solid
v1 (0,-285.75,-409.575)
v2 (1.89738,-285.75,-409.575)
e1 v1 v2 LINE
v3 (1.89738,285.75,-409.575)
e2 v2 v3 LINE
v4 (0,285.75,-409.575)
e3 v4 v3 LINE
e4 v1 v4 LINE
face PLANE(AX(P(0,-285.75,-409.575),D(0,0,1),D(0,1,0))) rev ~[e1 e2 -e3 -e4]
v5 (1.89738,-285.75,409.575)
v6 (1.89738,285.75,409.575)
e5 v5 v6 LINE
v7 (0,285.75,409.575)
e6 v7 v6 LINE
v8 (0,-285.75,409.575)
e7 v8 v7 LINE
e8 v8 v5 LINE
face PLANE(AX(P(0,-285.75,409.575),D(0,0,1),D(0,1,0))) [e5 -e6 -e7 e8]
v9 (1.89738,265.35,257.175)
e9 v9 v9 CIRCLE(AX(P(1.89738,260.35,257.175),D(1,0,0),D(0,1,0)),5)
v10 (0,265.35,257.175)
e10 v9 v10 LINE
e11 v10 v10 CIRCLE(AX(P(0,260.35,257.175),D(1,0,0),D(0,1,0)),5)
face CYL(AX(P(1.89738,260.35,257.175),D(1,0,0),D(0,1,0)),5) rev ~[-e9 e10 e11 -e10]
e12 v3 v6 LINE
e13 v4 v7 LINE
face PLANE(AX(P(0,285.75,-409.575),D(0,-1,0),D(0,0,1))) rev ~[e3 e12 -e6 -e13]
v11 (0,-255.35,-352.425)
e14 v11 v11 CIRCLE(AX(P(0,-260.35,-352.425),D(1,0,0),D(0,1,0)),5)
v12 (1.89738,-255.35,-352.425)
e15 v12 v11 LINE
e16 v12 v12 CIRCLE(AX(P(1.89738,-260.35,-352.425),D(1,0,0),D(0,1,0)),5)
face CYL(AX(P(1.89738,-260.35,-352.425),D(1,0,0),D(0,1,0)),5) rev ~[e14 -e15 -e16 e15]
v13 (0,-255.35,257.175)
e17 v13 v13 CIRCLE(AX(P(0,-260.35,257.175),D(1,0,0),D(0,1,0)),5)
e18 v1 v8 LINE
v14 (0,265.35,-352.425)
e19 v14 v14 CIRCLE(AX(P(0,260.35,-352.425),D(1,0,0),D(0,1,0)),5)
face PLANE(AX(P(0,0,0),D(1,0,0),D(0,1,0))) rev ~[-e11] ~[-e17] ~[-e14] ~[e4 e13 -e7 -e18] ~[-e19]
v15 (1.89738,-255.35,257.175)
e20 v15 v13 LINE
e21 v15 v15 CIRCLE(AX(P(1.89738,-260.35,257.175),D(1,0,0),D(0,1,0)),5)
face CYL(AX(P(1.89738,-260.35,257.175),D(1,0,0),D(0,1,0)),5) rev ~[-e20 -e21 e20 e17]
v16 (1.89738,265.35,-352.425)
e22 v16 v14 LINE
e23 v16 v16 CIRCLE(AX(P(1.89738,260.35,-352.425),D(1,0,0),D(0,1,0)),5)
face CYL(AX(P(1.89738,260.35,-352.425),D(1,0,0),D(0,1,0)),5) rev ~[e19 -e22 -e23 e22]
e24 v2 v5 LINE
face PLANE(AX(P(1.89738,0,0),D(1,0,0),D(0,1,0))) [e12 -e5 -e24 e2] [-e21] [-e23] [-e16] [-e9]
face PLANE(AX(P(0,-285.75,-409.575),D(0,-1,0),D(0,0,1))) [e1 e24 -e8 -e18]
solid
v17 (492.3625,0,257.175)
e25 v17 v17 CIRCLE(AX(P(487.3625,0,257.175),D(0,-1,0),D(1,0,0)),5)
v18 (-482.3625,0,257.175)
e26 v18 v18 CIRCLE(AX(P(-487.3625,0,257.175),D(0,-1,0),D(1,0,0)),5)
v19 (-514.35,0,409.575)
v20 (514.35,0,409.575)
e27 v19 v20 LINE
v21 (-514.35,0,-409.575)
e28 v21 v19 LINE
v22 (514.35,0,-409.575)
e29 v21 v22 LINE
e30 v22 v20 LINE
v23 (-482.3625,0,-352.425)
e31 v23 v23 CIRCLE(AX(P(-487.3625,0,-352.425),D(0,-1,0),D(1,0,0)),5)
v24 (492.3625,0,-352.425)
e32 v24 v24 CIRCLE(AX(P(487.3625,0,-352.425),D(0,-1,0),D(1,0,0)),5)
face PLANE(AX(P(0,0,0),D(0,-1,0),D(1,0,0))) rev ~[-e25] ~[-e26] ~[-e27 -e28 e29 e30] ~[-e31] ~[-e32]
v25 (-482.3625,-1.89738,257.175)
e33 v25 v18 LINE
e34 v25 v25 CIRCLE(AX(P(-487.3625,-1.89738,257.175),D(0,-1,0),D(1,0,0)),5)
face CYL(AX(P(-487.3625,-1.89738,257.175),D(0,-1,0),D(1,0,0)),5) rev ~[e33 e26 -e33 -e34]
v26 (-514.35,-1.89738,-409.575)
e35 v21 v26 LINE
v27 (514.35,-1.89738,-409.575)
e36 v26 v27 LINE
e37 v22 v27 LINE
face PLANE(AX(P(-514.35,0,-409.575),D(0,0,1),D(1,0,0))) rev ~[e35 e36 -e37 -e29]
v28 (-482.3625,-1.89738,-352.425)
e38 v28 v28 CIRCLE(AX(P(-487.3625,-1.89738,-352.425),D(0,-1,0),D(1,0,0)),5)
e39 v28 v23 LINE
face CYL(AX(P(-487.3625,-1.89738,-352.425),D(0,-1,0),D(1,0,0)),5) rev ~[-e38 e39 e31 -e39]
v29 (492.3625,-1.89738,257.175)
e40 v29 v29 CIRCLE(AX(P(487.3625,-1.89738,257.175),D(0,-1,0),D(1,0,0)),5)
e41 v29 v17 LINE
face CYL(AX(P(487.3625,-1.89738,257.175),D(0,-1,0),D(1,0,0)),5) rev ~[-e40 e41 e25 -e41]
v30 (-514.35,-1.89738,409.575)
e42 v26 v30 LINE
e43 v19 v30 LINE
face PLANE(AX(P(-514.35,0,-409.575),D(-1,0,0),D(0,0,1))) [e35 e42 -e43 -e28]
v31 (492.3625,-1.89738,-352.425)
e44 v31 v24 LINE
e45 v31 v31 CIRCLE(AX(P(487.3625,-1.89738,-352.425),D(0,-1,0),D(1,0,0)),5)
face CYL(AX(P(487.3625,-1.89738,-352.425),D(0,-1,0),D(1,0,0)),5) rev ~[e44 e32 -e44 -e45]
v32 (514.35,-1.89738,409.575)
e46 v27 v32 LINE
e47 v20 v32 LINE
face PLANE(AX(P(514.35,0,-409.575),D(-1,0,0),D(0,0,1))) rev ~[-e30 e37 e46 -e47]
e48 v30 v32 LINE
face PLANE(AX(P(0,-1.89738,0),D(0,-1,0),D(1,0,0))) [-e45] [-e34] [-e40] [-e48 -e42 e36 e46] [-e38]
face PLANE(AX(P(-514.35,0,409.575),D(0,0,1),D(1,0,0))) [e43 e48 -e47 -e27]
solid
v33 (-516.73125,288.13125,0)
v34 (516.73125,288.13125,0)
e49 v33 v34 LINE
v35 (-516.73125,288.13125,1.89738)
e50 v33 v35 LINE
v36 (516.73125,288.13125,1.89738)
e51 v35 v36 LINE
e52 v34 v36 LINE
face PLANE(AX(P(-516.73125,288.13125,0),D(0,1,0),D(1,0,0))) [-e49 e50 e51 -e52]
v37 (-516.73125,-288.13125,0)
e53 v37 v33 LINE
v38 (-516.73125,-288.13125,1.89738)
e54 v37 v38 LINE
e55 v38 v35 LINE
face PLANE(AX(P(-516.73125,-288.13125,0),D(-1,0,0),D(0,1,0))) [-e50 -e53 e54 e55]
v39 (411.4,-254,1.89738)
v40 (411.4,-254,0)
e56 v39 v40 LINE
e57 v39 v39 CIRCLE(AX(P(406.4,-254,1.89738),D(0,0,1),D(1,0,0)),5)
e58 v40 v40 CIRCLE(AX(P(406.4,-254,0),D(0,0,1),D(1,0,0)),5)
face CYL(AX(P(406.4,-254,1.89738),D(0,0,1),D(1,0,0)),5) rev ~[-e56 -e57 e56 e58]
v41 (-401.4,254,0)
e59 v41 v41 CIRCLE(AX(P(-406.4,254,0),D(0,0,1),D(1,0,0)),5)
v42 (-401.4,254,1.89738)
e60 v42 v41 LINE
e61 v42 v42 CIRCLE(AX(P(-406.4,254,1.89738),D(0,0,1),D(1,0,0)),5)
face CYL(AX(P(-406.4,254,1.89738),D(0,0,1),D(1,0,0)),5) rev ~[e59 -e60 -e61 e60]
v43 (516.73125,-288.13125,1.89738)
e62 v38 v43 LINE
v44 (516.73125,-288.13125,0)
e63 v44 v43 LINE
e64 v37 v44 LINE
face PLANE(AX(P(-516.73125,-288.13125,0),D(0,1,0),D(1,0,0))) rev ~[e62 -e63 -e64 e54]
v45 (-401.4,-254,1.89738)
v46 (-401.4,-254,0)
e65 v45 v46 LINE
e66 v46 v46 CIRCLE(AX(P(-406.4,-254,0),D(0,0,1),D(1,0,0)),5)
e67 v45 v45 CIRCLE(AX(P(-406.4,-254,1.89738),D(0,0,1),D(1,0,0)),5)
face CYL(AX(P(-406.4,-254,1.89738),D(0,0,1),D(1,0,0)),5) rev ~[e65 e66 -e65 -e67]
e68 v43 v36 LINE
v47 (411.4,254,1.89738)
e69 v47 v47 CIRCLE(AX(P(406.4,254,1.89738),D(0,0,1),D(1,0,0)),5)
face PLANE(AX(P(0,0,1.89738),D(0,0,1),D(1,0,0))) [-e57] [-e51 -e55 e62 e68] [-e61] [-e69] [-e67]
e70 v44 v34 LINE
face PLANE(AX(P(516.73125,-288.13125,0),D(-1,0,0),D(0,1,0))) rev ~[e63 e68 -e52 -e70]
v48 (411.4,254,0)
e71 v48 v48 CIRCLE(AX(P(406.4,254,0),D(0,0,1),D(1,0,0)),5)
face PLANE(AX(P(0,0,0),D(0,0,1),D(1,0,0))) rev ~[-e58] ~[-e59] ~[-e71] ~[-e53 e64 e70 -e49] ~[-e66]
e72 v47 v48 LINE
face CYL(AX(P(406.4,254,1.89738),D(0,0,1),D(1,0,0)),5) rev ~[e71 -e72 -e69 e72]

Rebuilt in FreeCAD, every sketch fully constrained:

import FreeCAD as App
import Part
import Sketcher
Q = App.Units.Quantity


def add_polygon(sketch, points):
    """Adds a closed chain of lines whose ends are joined by coincident constraints."""
    first, n = sketch.GeometryCount, len(points)
    for a, b in zip(points, points[1:] + points[:1]):
        sketch.addGeometry(Part.LineSegment(App.Vector(*a, 0), App.Vector(*b, 0)), False)
    for i in range(n):
        sketch.addConstraint(Sketcher.Constraint("Coincident", first + i, 2, first + (i + 1) % n, 1))

doc = App.newDocument("Part")
body = doc.addObject("PartDesign::Body", "Body")

sketch1 = doc.addObject("Sketcher::SketchObject", "Sketch")
body.addObject(sketch1)
sketch1.AttachmentSupport = (doc.YZ_Plane, [""])
sketch1.MapMode = "FlatFace"
add_polygon(sketch1, [(-286, 410), (-286, -410), (286, -410), (286, 410)])
sketch1.addConstraint([
    Sketcher.Constraint("Vertical", 0),
    Sketcher.Constraint("Horizontal", 1),
    Sketcher.Constraint("Vertical", 2),
    Sketcher.Constraint("Horizontal", 3),
    Sketcher.Constraint("Symmetric", 0, 2, 2, 2, -1, 1),
    Sketcher.Constraint("DistanceX", 1, 1, 1, 2, Q("22.5 in")),
    Sketcher.Constraint("DistanceY", 0, 2, 0, 1, Q("32.25 in")),
])
pad1 = doc.addObject("PartDesign::Pad", "Pad")
body.addObject(pad1)
pad1.Profile = sketch1
pad1.Length = Q("0.0747 in")

sketch2 = doc.addObject("Sketcher::SketchObject", "Sketch001")
body.addObject(sketch2)
sketch2.AttachmentSupport = (doc.YZ_Plane, [""])
sketch2.MapMode = "FlatFace"
sketch2.AttachmentOffset = App.Placement(App.Vector(0, 0, 0.0747 * 25.4), App.Rotation())
sketch2.addGeometry([
    Part.Circle(App.Vector(-260, 257, 0), App.Vector(0, 0, 1), 5),
    Part.Circle(App.Vector(-260, -352, 0), App.Vector(0, 0, 1), 5),
    Part.Circle(App.Vector(260, 257, 0), App.Vector(0, 0, 1), 5),
    Part.Circle(App.Vector(260, -352, 0), App.Vector(0, 0, 1), 5),
], False)
sketch2.addConstraint([
    Sketcher.Constraint("Equal", 0, 1),
    Sketcher.Constraint("Equal", 1, 2),
    Sketcher.Constraint("Equal", 2, 3),
    Sketcher.Constraint("Symmetric", 0, 3, 2, 3, -2),
    Sketcher.Constraint("Symmetric", 1, 3, 3, 3, -2),
    Sketcher.Constraint("Vertical", 0, 3, 1, 3),
    Sketcher.Constraint("DistanceY", 1, 3, 0, 3, Q("24 in")),
    Sketcher.Constraint("DistanceX", 0, 3, 2, 3, Q("20.5 in")),
    Sketcher.Constraint("Diameter", 0, Q("10 mm")),
    Sketcher.Constraint("DistanceY", -1, 1, 0, 3, Q("10.125 in")),
])
pocket1 = doc.addObject("PartDesign::Pocket", "Pocket")
body.addObject(pocket1)
pocket1.Profile = sketch2
pocket1.Type = "ThroughAll"
body2 = doc.addObject("PartDesign::Body", "Body001")

sketch3 = doc.addObject("Sketcher::SketchObject", "Sketch002")
body2.addObject(sketch3)
sketch3.AttachmentSupport = (doc.getObject("XZ_Plane001"), [""])
sketch3.MapMode = "FlatFace"
add_polygon(sketch3, [(-514, 410), (-514, -410), (514, -410), (514, 410)])
sketch3.addConstraint([
    Sketcher.Constraint("Vertical", 0),
    Sketcher.Constraint("Horizontal", 1),
    Sketcher.Constraint("Vertical", 2),
    Sketcher.Constraint("Horizontal", 3),
    Sketcher.Constraint("Symmetric", 0, 2, 2, 2, -1, 1),
    Sketcher.Constraint("DistanceX", 1, 1, 1, 2, Q("40.5 in")),
    Sketcher.Constraint("DistanceY", 0, 2, 0, 1, Q("32.25 in")),
])
pad2 = doc.addObject("PartDesign::Pad", "Pad001")
body2.addObject(pad2)
pad2.Profile = sketch3
pad2.Length = Q("0.0747 in")

sketch4 = doc.addObject("Sketcher::SketchObject", "Sketch003")
body2.addObject(sketch4)
sketch4.AttachmentSupport = (doc.getObject("XZ_Plane001"), [""])
sketch4.MapMode = "FlatFace"
sketch4.AttachmentOffset = App.Placement(App.Vector(0, 0, 0.0747 * 25.4), App.Rotation())
sketch4.addGeometry([
    Part.Circle(App.Vector(-487, 257, 0), App.Vector(0, 0, 1), 5),
    Part.Circle(App.Vector(487, 257, 0), App.Vector(0, 0, 1), 5),
    Part.Circle(App.Vector(-487, -352, 0), App.Vector(0, 0, 1), 5),
    Part.Circle(App.Vector(487, -352, 0), App.Vector(0, 0, 1), 5),
], False)
sketch4.addConstraint([
    Sketcher.Constraint("Equal", 0, 1),
    Sketcher.Constraint("Equal", 1, 2),
    Sketcher.Constraint("Equal", 2, 3),
    Sketcher.Constraint("Symmetric", 0, 3, 1, 3, -2),
    Sketcher.Constraint("Symmetric", 2, 3, 3, 3, -2),
    Sketcher.Constraint("Vertical", 0, 3, 2, 3),
    Sketcher.Constraint("DistanceY", 2, 3, 0, 3, Q("24 in")),
    Sketcher.Constraint("Diameter", 0, Q("10 mm")),
    Sketcher.Constraint("DistanceX", 0, 3, -1, 1, Q("19.1875 in")),
    Sketcher.Constraint("DistanceY", -1, 1, 0, 3, Q("10.125 in")),
])
pocket2 = doc.addObject("PartDesign::Pocket", "Pocket001")
body2.addObject(pocket2)
pocket2.Profile = sketch4
pocket2.Type = "ThroughAll"
body3 = doc.addObject("PartDesign::Body", "Body002")

sketch5 = doc.addObject("Sketcher::SketchObject", "Sketch004")
body3.addObject(sketch5)
sketch5.AttachmentSupport = (doc.getObject("XY_Plane002"), [""])
sketch5.MapMode = "FlatFace"
add_polygon(sketch5, [(-517, 288), (-517, -288), (517, -288), (517, 288)])
sketch5.addConstraint([
    Sketcher.Constraint("Vertical", 0),
    Sketcher.Constraint("Horizontal", 1),
    Sketcher.Constraint("Vertical", 2),
    Sketcher.Constraint("Horizontal", 3),
    Sketcher.Constraint("Symmetric", 0, 2, 2, 2, -1, 1),
    Sketcher.Constraint("DistanceX", 1, 1, 1, 2, Q("40.6875 in")),
    Sketcher.Constraint("DistanceY", 0, 2, 0, 1, Q("22.6875 in")),
])
pad3 = doc.addObject("PartDesign::Pad", "Pad002")
body3.addObject(pad3)
pad3.Profile = sketch5
pad3.Length = Q("0.0747 in")

sketch6 = doc.addObject("Sketcher::SketchObject", "Sketch005")
body3.addObject(sketch6)
sketch6.AttachmentSupport = (doc.getObject("XY_Plane002"), [""])
sketch6.MapMode = "FlatFace"
sketch6.AttachmentOffset = App.Placement(App.Vector(0, 0, 0.0747 * 25.4), App.Rotation())
sketch6.addGeometry([
    Part.Circle(App.Vector(406, -254, 0), App.Vector(0, 0, 1), 5),
    Part.Circle(App.Vector(-406, -254, 0), App.Vector(0, 0, 1), 5),
    Part.Circle(App.Vector(406, 254, 0), App.Vector(0, 0, 1), 5),
    Part.Circle(App.Vector(-406, 254, 0), App.Vector(0, 0, 1), 5),
], False)
sketch6.addConstraint([
    Sketcher.Constraint("Equal", 0, 1),
    Sketcher.Constraint("Equal", 1, 2),
    Sketcher.Constraint("Equal", 2, 3),
    Sketcher.Constraint("Symmetric", 1, 3, 2, 3, -1, 1),
    Sketcher.Constraint("Symmetric", 0, 3, 3, 3, -1, 1),
    Sketcher.Constraint("Symmetric", 0, 3, 1, 3, -2),
    Sketcher.Constraint("DistanceX", -1, 1, 0, 3, Q("16 in")),
    Sketcher.Constraint("DistanceY", 0, 3, -1, 1, Q("10 in")),
    Sketcher.Constraint("Diameter", 0, Q("10 mm")),
])
pocket3 = doc.addObject("PartDesign::Pocket", "Pocket002")
body3.addObject(pocket3)
pocket3.Profile = sketch6
pocket3.Type = "ThroughAll"

doc.recompute()
